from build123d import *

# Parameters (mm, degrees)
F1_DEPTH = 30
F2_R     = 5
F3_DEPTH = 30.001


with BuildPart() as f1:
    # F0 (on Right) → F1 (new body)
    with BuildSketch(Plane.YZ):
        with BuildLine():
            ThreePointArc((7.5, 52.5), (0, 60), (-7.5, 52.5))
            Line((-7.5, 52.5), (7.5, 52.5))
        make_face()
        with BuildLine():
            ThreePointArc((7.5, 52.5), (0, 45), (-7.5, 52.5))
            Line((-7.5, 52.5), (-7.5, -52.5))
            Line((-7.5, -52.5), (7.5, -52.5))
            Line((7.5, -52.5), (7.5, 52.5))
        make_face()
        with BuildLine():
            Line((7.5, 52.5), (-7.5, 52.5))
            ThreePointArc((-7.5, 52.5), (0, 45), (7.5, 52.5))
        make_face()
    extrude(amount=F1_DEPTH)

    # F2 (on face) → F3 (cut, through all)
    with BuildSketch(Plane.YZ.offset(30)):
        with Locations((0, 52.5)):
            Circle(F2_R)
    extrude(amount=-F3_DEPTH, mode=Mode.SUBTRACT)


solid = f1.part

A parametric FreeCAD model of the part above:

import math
import FreeCAD as App
import Part
import Sketcher
from FreeCAD import Vector
Q = App.Units.Quantity

doc = App.newDocument("Part")
body = doc.addObject("PartDesign::Body", "Body")

# Sketch on YZ plane
sketch1 = body.newObject("Sketcher::SketchObject", "Sketch")
sketch1.AttachmentSupport = (doc.getObject("YZ_Plane"), [""])
sketch1.MapMode = "FlatFace"
sketch1.addGeometry([
    Part.ArcOfCircle(Part.Circle(Vector(0, 52, 0), Vector(0, 0, 1), 8), math.radians(0), math.radians(180)),
    Part.LineSegment(Vector(-8, 52, 0), Vector(-8, -52, 0)),
    Part.LineSegment(Vector(-8, -52, 0), Vector(8, -52, 0)),
    Part.LineSegment(Vector(8, -52, 0), Vector(8, 52, 0)),
], False)
sketch1.addConstraint([
    Sketcher.Constraint("Tangent", 0, 2, 1, 1),
    Sketcher.Constraint("Coincident", 1, 2, 2, 1),
    Sketcher.Constraint("Coincident", 2, 2, 3, 1),
    Sketcher.Constraint("Tangent", 3, 2, 0, 1),
    Sketcher.Constraint("Vertical", 1),
    Sketcher.Constraint("Horizontal", 2),
    Sketcher.Constraint("Vertical", 3),
    Sketcher.Constraint("Symmetric", 0, 2, 2, 2, -1, 1),
    Sketcher.Constraint("Radius", 0, Q("7.5 mm")),
    Sketcher.Constraint("DistanceY", 1, 2, 1, 1, Q("105 mm")),
])
pad1 = body.newObject("PartDesign::Pad", "Pad")
pad1.Profile = sketch1
pad1.Length = 30

# Sketch on YZ plane
sketch2 = body.newObject("Sketcher::SketchObject", "Sketch001")
sketch2.AttachmentSupport = (doc.getObject("YZ_Plane"), [""])
sketch2.MapMode = "FlatFace"
sketch2.AttachmentOffset = App.Placement(Vector(0, 0, 30), App.Rotation())
sketch2.addGeometry(Part.Circle(Vector(0, 52, 0), Vector(0, 0, 1), 5), False)
sketch2.addConstraint([
    Sketcher.Constraint("PointOnObject", 0, 3, -2),
    Sketcher.Constraint("Diameter", 0, Q("10 mm")),
    Sketcher.Constraint("DistanceY", -1, 1, 0, 3, Q("52.5 mm")),
])
pocket1 = body.newObject("PartDesign::Pocket", "Pocket")
pocket1.Profile = sketch2
pocket1.Type = "ThroughAll"

doc.recompute()
